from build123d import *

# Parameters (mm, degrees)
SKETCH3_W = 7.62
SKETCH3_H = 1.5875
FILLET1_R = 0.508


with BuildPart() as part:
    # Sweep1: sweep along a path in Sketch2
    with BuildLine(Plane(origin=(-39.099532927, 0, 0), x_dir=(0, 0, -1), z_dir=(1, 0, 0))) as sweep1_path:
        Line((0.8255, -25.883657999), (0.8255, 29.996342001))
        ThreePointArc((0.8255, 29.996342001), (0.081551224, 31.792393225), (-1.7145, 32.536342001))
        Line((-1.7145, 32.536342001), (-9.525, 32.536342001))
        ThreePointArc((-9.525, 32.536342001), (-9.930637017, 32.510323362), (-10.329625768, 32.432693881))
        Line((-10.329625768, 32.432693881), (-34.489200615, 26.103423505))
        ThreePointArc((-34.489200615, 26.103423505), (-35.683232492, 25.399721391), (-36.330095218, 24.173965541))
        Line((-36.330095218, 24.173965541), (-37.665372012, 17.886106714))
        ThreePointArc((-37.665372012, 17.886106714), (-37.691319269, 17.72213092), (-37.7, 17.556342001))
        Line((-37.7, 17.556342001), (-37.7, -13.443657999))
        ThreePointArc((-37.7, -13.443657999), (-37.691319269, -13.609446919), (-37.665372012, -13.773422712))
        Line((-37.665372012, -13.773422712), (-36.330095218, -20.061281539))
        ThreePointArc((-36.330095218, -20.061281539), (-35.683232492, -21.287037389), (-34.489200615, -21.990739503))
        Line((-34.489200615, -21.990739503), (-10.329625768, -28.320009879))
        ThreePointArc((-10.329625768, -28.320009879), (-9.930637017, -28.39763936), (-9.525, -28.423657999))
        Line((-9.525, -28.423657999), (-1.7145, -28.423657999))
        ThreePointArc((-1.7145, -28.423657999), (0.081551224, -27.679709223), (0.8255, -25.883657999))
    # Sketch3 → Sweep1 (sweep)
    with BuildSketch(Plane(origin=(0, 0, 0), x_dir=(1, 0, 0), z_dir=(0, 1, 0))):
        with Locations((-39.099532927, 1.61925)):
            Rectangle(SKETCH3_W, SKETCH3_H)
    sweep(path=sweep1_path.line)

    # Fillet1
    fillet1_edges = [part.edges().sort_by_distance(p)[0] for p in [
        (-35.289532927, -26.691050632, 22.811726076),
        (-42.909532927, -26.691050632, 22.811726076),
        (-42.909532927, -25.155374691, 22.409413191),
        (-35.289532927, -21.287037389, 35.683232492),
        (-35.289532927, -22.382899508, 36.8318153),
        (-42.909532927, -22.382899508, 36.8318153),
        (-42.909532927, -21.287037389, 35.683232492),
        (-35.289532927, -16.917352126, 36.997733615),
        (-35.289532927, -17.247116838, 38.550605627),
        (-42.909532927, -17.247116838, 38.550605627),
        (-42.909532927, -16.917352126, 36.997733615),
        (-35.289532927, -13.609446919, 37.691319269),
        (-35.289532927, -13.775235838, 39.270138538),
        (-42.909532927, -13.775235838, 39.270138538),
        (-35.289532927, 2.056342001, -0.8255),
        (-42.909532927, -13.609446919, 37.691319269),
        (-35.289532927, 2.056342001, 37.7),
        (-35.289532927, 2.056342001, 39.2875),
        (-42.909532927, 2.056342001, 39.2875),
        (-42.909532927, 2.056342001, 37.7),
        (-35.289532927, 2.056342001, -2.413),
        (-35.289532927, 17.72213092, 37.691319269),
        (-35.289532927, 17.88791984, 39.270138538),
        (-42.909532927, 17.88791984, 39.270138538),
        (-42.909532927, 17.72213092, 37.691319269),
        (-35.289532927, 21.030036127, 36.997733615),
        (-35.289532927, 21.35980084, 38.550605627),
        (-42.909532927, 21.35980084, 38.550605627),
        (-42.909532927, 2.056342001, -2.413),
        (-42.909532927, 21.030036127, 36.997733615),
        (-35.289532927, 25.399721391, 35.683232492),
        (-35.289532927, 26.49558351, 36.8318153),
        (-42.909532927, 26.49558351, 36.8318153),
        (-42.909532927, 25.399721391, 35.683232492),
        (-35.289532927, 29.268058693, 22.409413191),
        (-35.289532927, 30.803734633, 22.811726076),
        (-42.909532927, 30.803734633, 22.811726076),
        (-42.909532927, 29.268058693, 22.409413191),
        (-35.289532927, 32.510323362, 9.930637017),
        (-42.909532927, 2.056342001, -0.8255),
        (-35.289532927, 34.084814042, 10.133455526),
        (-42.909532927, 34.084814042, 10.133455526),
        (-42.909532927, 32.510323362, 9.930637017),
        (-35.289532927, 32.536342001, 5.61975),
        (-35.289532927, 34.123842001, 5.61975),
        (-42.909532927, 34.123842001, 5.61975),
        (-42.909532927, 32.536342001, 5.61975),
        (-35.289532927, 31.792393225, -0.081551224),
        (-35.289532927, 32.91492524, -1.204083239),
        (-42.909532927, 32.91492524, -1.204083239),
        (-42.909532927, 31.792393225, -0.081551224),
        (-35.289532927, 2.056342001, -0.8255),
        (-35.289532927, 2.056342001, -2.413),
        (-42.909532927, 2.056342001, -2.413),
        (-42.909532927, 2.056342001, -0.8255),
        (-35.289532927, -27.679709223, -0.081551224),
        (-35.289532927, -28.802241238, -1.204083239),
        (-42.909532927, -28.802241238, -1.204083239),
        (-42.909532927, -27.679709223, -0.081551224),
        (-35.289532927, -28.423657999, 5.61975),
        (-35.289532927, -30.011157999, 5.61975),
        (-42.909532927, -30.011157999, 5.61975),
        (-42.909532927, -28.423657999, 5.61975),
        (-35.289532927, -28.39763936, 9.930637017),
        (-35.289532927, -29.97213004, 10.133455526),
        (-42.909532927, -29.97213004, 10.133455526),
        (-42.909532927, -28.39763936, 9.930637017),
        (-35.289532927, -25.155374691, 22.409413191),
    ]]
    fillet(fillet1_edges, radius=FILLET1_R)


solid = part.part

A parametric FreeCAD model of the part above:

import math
import FreeCAD as App
import Part
import Sketcher
Q = App.Units.Quantity

doc = App.newDocument("Part")
body = doc.addObject("PartDesign::Body", "Body")

# Sketch on XZ plane
sketch1 = doc.addObject("Sketcher::SketchObject", "Sketch")
body.addObject(sketch1)
sketch1.AttachmentSupport = (doc.XZ_Plane, [""])
sketch1.MapMode = "FlatFace"
sketch1.addGeometry([
    Part.LineSegment(App.Vector(-42.9, -2.4, 0), App.Vector(-42.9, -0.8, 0)),
    Part.LineSegment(App.Vector(-42.9, -0.8, 0), App.Vector(-35.3, -0.8, 0)),
    Part.LineSegment(App.Vector(-35.3, -0.8, 0), App.Vector(-35.3, -2.4, 0)),
    Part.LineSegment(App.Vector(-35.3, -2.4, 0), App.Vector(-42.9, -2.4, 0)),
], False)
sketch1.addConstraint([
    Sketcher.Constraint("Coincident", 0, 2, 1, 1),
    Sketcher.Constraint("Coincident", 1, 2, 2, 1),
    Sketcher.Constraint("Coincident", 2, 2, 3, 1),
    Sketcher.Constraint("Coincident", 3, 2, 0, 1),
    Sketcher.Constraint("Vertical", 0),
    Sketcher.Constraint("Horizontal", 1),
    Sketcher.Constraint("Vertical", 2),
    Sketcher.Constraint("Horizontal", 3),
    Sketcher.Constraint("DistanceX", 1, 1, 1, 2, Q("0.3 in")),
    Sketcher.Constraint("DistanceY", 0, 1, 0, 2, Q("0.0625 in")),
    Sketcher.Constraint("DistanceY", 2, 2, -1, 1, Q("0.095 in")),
    Sketcher.Constraint("DistanceX", 0, 2, -1, 1, 42.909533),
])

# Sketch on YZ plane
sketch2 = doc.addObject("Sketcher::SketchObject", "Sketch001")
body.addObject(sketch2)
sketch2.AttachmentSupport = (doc.YZ_Plane, [""])
sketch2.MapMode = "FlatFace"
sketch2.AttachmentOffset = App.Placement(App.Vector(0, 0, -39.099533), App.Rotation())
sketch2.addGeometry([
    Part.LineSegment(App.Vector(-25.88, -0.83, 0), App.Vector(30, -0.83, 0)),  # 0
    Part.ArcOfCircle(Part.Circle(App.Vector(30, 1.71, 0), App.Vector(0, 0, 1), 2.54), math.radians(-90), math.radians(0)),  # 1
    Part.LineSegment(App.Vector(32.54, 1.71, 0), App.Vector(32.54, 9.53, 0)),  # 2
    Part.ArcOfCircle(Part.Circle(App.Vector(29.36, 9.53, 0), App.Vector(0, 0, 1), 3.17), math.radians(0), math.radians(14.68)),  # 3
    Part.LineSegment(App.Vector(32.43, 10.33, 0), App.Vector(26.1, 34.49, 0)),  # 4
    Part.ArcOfCircle(Part.Circle(App.Vector(23.65, 33.85, 0), App.Vector(0, 0, 1), 2.54), math.radians(15), math.radians(78)),  # 5
    Part.LineSegment(App.Vector(24.17, 36.33, 0), App.Vector(17.89, 37.67, 0)),  # 6
    Part.ArcOfCircle(Part.Circle(App.Vector(17.56, 36.11, 0), App.Vector(0, 0, 1), 1.59), math.radians(78.01), math.radians(90)),  # 7
    Part.LineSegment(App.Vector(17.56, 37.7, 0), App.Vector(-13.44, 37.7, 0)),  # 8
    Part.ArcOfCircle(Part.Circle(App.Vector(-13.44, 36.11, 0), App.Vector(0, 0, 1), 1.59), math.radians(90), math.radians(101.99)),  # 9
    Part.LineSegment(App.Vector(-13.77, 37.67, 0), App.Vector(-20.06, 36.33, 0)),  # 10
    Part.ArcOfCircle(Part.Circle(App.Vector(-19.53, 33.85, 0), App.Vector(0, 0, 1), 2.54), math.radians(102), math.radians(165)),  # 11
    Part.LineSegment(App.Vector(-21.99, 34.49, 0), App.Vector(-28.32, 10.33, 0)),  # 12
    Part.ArcOfCircle(Part.Circle(App.Vector(-25.25, 9.53, 0), App.Vector(0, 0, 1), 3.17), math.radians(165.32), math.radians(180)),  # 13
    Part.LineSegment(App.Vector(-28.42, 9.53, 0), App.Vector(-28.42, 1.71, 0)),  # 14
    Part.ArcOfCircle(Part.Circle(App.Vector(-25.88, 1.71, 0), App.Vector(0, 0, 1), 2.54), math.radians(-180), math.radians(-90)),  # 15
], False)
sketch2.addConstraint([
    Sketcher.Constraint("Tangent", 0, 2, 1, 1),
    Sketcher.Constraint("Tangent", 1, 2, 2, 1),
    Sketcher.Constraint("Tangent", 2, 2, 3, 1),
    Sketcher.Constraint("Tangent", 3, 2, 4, 1),
    Sketcher.Constraint("Tangent", 4, 2, 5, 1),
    Sketcher.Constraint("Tangent", 5, 2, 6, 1),
    Sketcher.Constraint("Tangent", 6, 2, 7, 1),
    Sketcher.Constraint("Tangent", 7, 2, 8, 1),
    Sketcher.Constraint("Tangent", 8, 2, 9, 1),
    Sketcher.Constraint("Tangent", 9, 2, 10, 1),
    Sketcher.Constraint("Tangent", 10, 2, 11, 1),
    Sketcher.Constraint("Tangent", 11, 2, 12, 1),
    Sketcher.Constraint("Tangent", 12, 2, 13, 1),
    Sketcher.Constraint("Tangent", 13, 2, 14, 1),
    Sketcher.Constraint("Tangent", 14, 2, 15, 1),
    Sketcher.Constraint("Tangent", 15, 2, 0, 1),
    Sketcher.Constraint("Horizontal", 0),
    Sketcher.Constraint("Vertical", 2),
    Sketcher.Constraint("Horizontal", 8),
    Sketcher.Constraint("Vertical", 14),
    Sketcher.Constraint("Equal", 1, 5),
    Sketcher.Constraint("Equal", 7, 9),
    Sketcher.Constraint("Equal", 5, 11),
    Sketcher.Constraint("Equal", 3, 13),
    Sketcher.Constraint("Equal", 11, 15),
    Sketcher.Constraint("Horizontal", 5, 3, 11, 3),
    Sketcher.Constraint("Horizontal", 3, 3, 13, 3),
    Sketcher.Constraint("Horizontal", 6, 2, 9, 2),
    Sketcher.Constraint("Horizontal", 4, 2, 11, 2),
    Sketcher.Constraint("Radius", 1, Q("0.1 in")),
    Sketcher.Constraint("DistanceX", 0, 1, 0, 2, Q("2.2 in")),
    Sketcher.Constraint("Radius", 3, Q("0.125 in")),
    Sketcher.Constraint("Radius", 7, Q("0.0625 in")),
    Sketcher.Constraint("DistanceX", 11, 3, 5, 3, Q("1.7 in")),
    Sketcher.Constraint("DistanceY", 2, 1, 2, 2, Q("0.3075 in")),
    Sketcher.Constraint("DistanceY", -1, 1, 3, 3, Q("0.375 in")),
    Sketcher.Constraint("DistanceY", 1, 3, 5, 3, Q("1.265 in")),
    Sketcher.Constraint("DistanceX", 8, 2, 8, 1, 31.0),
    Sketcher.Constraint("DistanceY", -1, 1, 7, 3, 36.1125),
    Sketcher.Constraint("DistanceX", -1, 1, 1, 3, 29.996342),
])
doc.recompute()

additivepipe = doc.addObject("PartDesign::AdditivePipe", "AdditivePipe")
body.addObject(additivepipe)
additivepipe.Profile = sketch1
additivepipe.Spine = (sketch2, ["Edge1", "Edge2", "Edge3", "Edge4", "Edge5", "Edge6", "Edge7", "Edge8", "Edge9", "Edge10", "Edge11", "Edge12", "Edge13", "Edge14", "Edge15", "Edge16"])
doc.recompute()

fillet = doc.addObject("PartDesign::Fillet", "Fillet")
body.addObject(fillet)
fillet.Base = (additivepipe, ["Edge1"])
fillet.UseAllEdges = True
fillet.Radius = Q("0.02 in")

doc.recompute()
